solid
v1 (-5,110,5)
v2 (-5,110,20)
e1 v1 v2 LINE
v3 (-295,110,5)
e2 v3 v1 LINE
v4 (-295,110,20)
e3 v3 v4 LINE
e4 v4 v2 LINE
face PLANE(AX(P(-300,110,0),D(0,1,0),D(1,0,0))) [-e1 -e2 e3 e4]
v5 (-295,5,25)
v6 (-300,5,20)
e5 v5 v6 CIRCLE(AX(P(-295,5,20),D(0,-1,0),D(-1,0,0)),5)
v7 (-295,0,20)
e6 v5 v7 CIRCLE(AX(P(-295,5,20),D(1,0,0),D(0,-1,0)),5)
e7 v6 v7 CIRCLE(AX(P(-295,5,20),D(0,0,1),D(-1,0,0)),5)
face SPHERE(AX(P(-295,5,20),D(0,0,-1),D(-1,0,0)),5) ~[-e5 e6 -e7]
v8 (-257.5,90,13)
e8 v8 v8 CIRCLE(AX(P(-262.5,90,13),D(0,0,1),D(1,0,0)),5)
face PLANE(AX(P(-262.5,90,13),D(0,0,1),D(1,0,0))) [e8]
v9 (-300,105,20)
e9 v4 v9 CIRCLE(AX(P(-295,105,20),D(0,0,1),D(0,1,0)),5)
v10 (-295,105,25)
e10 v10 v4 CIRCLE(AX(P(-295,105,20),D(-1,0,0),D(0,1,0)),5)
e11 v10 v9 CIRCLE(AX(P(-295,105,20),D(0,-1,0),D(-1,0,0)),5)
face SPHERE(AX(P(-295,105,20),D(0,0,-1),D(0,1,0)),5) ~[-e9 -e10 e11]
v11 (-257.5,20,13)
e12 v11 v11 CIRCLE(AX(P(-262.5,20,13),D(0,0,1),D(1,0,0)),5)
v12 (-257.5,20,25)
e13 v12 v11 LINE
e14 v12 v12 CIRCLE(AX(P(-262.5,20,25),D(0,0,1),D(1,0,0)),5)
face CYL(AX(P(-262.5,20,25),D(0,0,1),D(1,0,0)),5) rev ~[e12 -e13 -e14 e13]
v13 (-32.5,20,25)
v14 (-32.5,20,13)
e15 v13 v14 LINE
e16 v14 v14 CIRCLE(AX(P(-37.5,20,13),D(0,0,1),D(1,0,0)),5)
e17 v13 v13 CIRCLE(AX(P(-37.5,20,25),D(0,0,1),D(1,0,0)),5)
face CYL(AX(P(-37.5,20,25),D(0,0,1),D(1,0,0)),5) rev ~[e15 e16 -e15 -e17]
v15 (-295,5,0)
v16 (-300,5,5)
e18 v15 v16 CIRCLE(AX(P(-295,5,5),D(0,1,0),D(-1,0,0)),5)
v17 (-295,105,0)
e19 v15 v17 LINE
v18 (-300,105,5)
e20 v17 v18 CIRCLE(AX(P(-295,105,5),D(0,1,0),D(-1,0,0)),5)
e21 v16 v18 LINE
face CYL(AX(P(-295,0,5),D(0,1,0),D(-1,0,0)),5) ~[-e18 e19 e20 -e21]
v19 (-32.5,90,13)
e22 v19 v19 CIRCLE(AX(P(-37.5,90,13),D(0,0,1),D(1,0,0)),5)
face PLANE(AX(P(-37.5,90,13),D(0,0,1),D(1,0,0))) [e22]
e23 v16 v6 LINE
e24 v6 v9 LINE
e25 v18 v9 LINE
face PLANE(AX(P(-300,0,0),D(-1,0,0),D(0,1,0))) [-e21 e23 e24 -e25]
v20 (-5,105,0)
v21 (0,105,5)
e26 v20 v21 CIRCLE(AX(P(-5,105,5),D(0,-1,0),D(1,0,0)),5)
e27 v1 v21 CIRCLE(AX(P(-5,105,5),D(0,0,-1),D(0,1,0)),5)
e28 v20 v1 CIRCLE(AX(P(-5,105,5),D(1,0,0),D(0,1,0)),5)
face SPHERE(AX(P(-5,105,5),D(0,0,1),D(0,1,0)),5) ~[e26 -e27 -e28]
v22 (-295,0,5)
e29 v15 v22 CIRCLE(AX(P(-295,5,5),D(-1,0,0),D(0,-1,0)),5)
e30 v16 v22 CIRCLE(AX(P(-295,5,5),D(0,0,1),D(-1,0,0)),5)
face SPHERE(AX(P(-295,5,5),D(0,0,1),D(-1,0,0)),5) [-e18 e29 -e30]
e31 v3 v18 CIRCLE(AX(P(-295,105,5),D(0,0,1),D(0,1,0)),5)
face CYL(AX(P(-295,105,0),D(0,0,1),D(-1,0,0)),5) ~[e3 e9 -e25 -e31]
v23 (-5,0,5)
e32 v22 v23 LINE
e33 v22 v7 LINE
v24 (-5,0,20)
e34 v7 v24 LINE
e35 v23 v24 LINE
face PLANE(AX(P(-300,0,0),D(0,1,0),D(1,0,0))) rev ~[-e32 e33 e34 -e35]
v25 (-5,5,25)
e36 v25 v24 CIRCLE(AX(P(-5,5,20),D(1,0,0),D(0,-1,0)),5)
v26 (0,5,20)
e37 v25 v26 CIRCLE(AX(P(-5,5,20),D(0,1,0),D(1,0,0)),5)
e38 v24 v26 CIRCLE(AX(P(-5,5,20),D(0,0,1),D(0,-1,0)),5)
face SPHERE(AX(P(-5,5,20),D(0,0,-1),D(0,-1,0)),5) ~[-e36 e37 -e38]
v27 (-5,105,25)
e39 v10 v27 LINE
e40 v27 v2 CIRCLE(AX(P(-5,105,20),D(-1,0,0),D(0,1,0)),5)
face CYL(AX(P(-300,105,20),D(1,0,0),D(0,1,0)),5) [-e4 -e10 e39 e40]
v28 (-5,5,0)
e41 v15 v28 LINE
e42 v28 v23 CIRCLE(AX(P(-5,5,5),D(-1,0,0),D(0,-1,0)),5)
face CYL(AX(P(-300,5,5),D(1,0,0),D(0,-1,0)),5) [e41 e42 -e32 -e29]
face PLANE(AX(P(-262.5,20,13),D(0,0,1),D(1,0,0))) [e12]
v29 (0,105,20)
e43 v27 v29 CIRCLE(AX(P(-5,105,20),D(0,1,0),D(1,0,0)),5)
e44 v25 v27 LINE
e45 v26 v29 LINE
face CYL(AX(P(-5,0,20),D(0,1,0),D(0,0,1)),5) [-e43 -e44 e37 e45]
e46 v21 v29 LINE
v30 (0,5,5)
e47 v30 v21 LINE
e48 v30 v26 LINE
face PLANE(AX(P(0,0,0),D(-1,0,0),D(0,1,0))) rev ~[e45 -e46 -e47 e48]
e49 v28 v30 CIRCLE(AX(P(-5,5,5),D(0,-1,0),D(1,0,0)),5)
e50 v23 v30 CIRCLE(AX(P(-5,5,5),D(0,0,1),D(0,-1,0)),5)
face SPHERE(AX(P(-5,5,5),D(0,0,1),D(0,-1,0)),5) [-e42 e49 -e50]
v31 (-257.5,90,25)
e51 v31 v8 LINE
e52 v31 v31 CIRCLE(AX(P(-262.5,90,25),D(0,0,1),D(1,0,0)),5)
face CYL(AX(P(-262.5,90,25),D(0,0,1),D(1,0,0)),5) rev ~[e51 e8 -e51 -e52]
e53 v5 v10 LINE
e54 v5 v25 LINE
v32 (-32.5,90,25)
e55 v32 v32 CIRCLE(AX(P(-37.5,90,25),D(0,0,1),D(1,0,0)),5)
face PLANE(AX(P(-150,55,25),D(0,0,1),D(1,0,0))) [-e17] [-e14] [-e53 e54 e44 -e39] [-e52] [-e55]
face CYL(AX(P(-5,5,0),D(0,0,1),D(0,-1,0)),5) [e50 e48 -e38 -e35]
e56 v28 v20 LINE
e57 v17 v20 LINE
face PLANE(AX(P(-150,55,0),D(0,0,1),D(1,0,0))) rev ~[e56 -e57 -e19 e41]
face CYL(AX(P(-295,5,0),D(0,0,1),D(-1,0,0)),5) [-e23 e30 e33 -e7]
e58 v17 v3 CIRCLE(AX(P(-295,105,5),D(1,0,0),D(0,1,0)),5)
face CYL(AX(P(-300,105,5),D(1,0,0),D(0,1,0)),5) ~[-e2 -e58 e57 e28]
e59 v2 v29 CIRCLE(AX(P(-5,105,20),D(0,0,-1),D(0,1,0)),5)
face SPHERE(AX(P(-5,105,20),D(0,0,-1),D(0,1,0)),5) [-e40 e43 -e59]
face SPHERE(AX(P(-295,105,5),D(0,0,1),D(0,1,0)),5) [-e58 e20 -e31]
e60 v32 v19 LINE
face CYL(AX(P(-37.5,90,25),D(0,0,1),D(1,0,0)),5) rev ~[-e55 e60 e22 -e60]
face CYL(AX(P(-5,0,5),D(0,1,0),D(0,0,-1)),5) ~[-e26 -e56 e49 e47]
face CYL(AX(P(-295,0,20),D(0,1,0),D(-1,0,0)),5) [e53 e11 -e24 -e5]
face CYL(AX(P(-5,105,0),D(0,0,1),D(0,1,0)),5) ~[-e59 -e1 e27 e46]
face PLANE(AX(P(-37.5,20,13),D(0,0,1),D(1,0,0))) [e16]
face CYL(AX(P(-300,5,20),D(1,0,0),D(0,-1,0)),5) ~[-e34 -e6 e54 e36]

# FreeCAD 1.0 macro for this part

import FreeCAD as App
import Part
import Sketcher


def edges_at(feature, points):
    """Names of the edges that pass closest to the given points."""
    edges = feature.Shape.Edges
    near = lambda p: min(range(len(edges)), key=lambda i: edges[i].distToShape(Part.Vertex(*p))[0])
    return sorted({f"Edge{near(p) + 1}" for p in points})

doc = App.newDocument("Part")
body = doc.addObject("PartDesign::Body", "Body")

# Sketch on XY plane
sketch1 = doc.addObject("Sketcher::SketchObject", "Sketch")
body.addObject(sketch1)
sketch1.AttachmentSupport = (doc.XY_Plane, [""])
sketch1.MapMode = "FlatFace"
sketch1.addGeometry(Part.LineSegment(App.Vector(-300, 110, 0), App.Vector(-300, 0, 0)), False)
sketch1.addGeometry(Part.LineSegment(App.Vector(-300, 0, 0), App.Vector(0, 0, 0)), False)
sketch1.addGeometry(Part.LineSegment(App.Vector(0, 0, 0), App.Vector(0, 110, 0)), False)
sketch1.addGeometry(Part.LineSegment(App.Vector(0, 110, 0), App.Vector(-300, 110, 0)), False)
sketch1.addConstraint(Sketcher.Constraint("Coincident", 0, 2, 1, 1))
sketch1.addConstraint(Sketcher.Constraint("Coincident", 1, 2, 2, 1))
sketch1.addConstraint(Sketcher.Constraint("Coincident", 2, 2, 3, 1))
sketch1.addConstraint(Sketcher.Constraint("Coincident", 3, 2, 0, 1))
sketch1.addConstraint(Sketcher.Constraint("Vertical", 0))
sketch1.addConstraint(Sketcher.Constraint("Horizontal", 1))
sketch1.addConstraint(Sketcher.Constraint("Vertical", 2))
sketch1.addConstraint(Sketcher.Constraint("Horizontal", 3))
sketch1.addConstraint(Sketcher.Constraint("Coincident", 1, 2, -1, 1))
sketch1.addConstraint(Sketcher.Constraint("DistanceX", 1, 1, 1, 2, 300.0))
sketch1.addConstraint(Sketcher.Constraint("DistanceY", 0, 2, 0, 1, 110.0))
pad1 = doc.addObject("PartDesign::Pad", "Pad")
body.addObject(pad1)
pad1.Profile = sketch1
pad1.Length = 25

# Sketch on XY plane
sketch2 = doc.addObject("Sketcher::SketchObject", "Sketch001")
body.addObject(sketch2)
sketch2.AttachmentSupport = (doc.XY_Plane, [""])
sketch2.MapMode = "FlatFace"
sketch2.AttachmentOffset = App.Placement(App.Vector(0, 0, 25), App.Rotation())
sketch2.addGeometry(Part.Circle(App.Vector(-262.5, 90, 0), App.Vector(0, 0, 1), 5), False)
sketch2.addGeometry(Part.Circle(App.Vector(-262.5, 20, 0), App.Vector(0, 0, 1), 5), False)
sketch2.addGeometry(Part.Circle(App.Vector(-37.5, 90, 0), App.Vector(0, 0, 1), 5), False)
sketch2.addGeometry(Part.Circle(App.Vector(-37.5, 20, 0), App.Vector(0, 0, 1), 5), False)
sketch2.addConstraint(Sketcher.Constraint("Equal", 0, 1))
sketch2.addConstraint(Sketcher.Constraint("Equal", 1, 2))
sketch2.addConstraint(Sketcher.Constraint("Equal", 2, 3))
sketch2.addConstraint(Sketcher.Constraint("Horizontal", 0, 3, 2, 3))
sketch2.addConstraint(Sketcher.Constraint("Horizontal", 1, 3, 3, 3))
sketch2.addConstraint(Sketcher.Constraint("Vertical", 0, 3, 1, 3))
sketch2.addConstraint(Sketcher.Constraint("Vertical", 2, 3, 3, 3))
sketch2.addConstraint(Sketcher.Constraint("Diameter", 0, 10.0))
sketch2.addConstraint(Sketcher.Constraint("DistanceY", -1, 1, 0, 3, 90.0))
sketch2.addConstraint(Sketcher.Constraint("DistanceY", -1, 1, 1, 3, 20.0))
sketch2.addConstraint(Sketcher.Constraint("DistanceX", 0, 3, 2, 3, 225.0))
sketch2.addConstraint(Sketcher.Constraint("DistanceX", 0, 3, -1, 1, 262.5))
pocket1 = doc.addObject("PartDesign::Pocket", "Pocket")
body.addObject(pocket1)
pocket1.Profile = sketch2
pocket1.Length = 12
doc.recompute()

fillet = doc.addObject("PartDesign::Fillet", "Fillet")
body.addObject(fillet)
fillet.Base = (pocket1, edges_at(pocket1, [
    (0, 110, 12.5),
    (-300, 110, 12.5),
    (-150, 110, 0),
    (-150, 110, 25),
    (-300, 0, 12.5),
    (-300, 55, 0),
    (-300, 55, 25),
    (0, 0, 12.5),
    (-150, 0, 0),
    (-150, 0, 25),
    (0, 55, 0),
    (0, 55, 25),
]))
fillet.Radius = 5

doc.recompute()
